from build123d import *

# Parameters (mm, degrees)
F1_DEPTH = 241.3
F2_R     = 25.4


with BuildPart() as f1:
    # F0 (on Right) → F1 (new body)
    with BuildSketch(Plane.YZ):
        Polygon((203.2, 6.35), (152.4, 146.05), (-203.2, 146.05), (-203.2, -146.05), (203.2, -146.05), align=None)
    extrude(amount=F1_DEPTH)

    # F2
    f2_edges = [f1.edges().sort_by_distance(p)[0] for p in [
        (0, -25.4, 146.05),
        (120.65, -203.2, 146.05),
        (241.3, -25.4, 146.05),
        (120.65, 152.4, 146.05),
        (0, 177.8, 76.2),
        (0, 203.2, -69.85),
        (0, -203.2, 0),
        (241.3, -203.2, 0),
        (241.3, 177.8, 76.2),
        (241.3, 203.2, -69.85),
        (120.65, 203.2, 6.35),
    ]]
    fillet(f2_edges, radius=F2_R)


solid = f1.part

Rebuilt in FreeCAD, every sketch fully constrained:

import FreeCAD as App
import Part
import Sketcher
Q = App.Units.Quantity


def edges_at(feature, points):
    """Names of the edges that pass closest to the given points."""
    edges = feature.Shape.Edges
    near = lambda p: min(range(len(edges)), key=lambda i: edges[i].distToShape(Part.Vertex(*p))[0])
    return sorted({f"Edge{near(p) + 1}" for p in points})

doc = App.newDocument("Part")
body = doc.addObject("PartDesign::Body", "Body")

# Sketch on YZ plane
sketch1 = doc.addObject("Sketcher::SketchObject", "Sketch")
body.addObject(sketch1)
sketch1.AttachmentSupport = (doc.YZ_Plane, [""])
sketch1.MapMode = "FlatFace"
sketch1.addGeometry(Part.LineSegment(App.Vector(203.2, 6.35, 0), App.Vector(152.4, 146.05, 0)), False)
sketch1.addGeometry(Part.LineSegment(App.Vector(152.4, 146.05, 0), App.Vector(-203.2, 146.05, 0)), False)
sketch1.addGeometry(Part.LineSegment(App.Vector(-203.2, 146.05, 0), App.Vector(-203.2, -146.05, 0)), False)
sketch1.addGeometry(Part.LineSegment(App.Vector(-203.2, -146.05, 0), App.Vector(203.2, -146.05, 0)), False)
sketch1.addGeometry(Part.LineSegment(App.Vector(203.2, -146.05, 0), App.Vector(203.2, 6.35, 0)), False)
sketch1.addConstraint(Sketcher.Constraint("Coincident", 0, 2, 1, 1))
sketch1.addConstraint(Sketcher.Constraint("Coincident", 1, 2, 2, 1))
sketch1.addConstraint(Sketcher.Constraint("Coincident", 2, 2, 3, 1))
sketch1.addConstraint(Sketcher.Constraint("Coincident", 3, 2, 4, 1))
sketch1.addConstraint(Sketcher.Constraint("Coincident", 4, 2, 0, 1))
sketch1.addConstraint(Sketcher.Constraint("Horizontal", 1))
sketch1.addConstraint(Sketcher.Constraint("Vertical", 2))
sketch1.addConstraint(Sketcher.Constraint("Horizontal", 3))
sketch1.addConstraint(Sketcher.Constraint("Vertical", 4))
sketch1.addConstraint(Sketcher.Constraint("Symmetric", 1, 2, 3, 2, -1, 1))
sketch1.addConstraint(Sketcher.Constraint("DistanceX", 1, 2, 1, 1, Q("14 in")))
sketch1.addConstraint(Sketcher.Constraint("DistanceX", 3, 1, 3, 2, Q("16 in")))
sketch1.addConstraint(Sketcher.Constraint("DistanceY", 4, 1, 4, 2, Q("6 in")))
sketch1.addConstraint(Sketcher.Constraint("DistanceY", 2, 2, 2, 1, Q("11.5 in")))
pad1 = doc.addObject("PartDesign::Pad", "Pad")
body.addObject(pad1)
pad1.Profile = sketch1
pad1.Length = Q("9.5 in")
doc.recompute()

fillet = doc.addObject("PartDesign::Fillet", "Fillet")
body.addObject(fillet)
fillet.Base = (pad1, edges_at(pad1, [
    (0, -25.4, 146.05),
    (120.65, -203.2, 146.05),
    (241.3, -25.4, 146.05),
    (120.65, 152.4, 146.05),
    (0, 177.8, 76.2),
    (0, 203.2, -69.85),
    (0, -203.2, 0),
    (241.3, -203.2, 0),
    (241.3, 177.8, 76.2),
    (241.3, 203.2, -69.85),
    (120.65, 203.2, 6.35),
]))
fillet.Radius = Q("1 in")

doc.recompute()
